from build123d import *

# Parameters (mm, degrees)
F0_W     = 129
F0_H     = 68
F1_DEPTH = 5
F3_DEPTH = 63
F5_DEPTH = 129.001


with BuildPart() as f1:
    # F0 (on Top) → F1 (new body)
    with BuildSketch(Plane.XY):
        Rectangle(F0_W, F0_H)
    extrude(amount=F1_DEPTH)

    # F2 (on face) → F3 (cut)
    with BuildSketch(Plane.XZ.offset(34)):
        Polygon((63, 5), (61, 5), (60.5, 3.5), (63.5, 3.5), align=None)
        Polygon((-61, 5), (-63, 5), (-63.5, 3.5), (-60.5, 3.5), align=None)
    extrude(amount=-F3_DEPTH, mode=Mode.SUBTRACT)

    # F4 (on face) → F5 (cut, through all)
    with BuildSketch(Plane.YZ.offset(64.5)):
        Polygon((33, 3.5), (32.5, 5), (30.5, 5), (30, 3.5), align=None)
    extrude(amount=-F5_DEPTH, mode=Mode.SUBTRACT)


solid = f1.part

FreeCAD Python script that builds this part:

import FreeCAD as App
import Part
import Sketcher
from FreeCAD import Vector


def add_polygon(sketch, points):
    """Adds a closed chain of lines whose ends are joined by coincident constraints."""
    first, n = sketch.GeometryCount, len(points)
    for a, b in zip(points, points[1:] + points[:1]):
        sketch.addGeometry(Part.LineSegment(App.Vector(*a, 0), App.Vector(*b, 0)), False)
    for i in range(n):
        sketch.addConstraint(Sketcher.Constraint("Coincident", first + i, 2, first + (i + 1) % n, 1))

doc = App.newDocument("Part")
body = doc.addObject("PartDesign::Body", "Body")

# Sketch on XY plane
sketch1 = doc.addObject("Sketcher::SketchObject", "Sketch")
body.addObject(sketch1)
sketch1.AttachmentSupport = (doc.XY_Plane, [""])
sketch1.MapMode = "FlatFace"
add_polygon(sketch1, [(-64, 34), (-64, -34), (64, -34), (64, 34)])  # lines 0-3
sketch1.addConstraint(Sketcher.Constraint("Vertical", 0))
sketch1.addConstraint(Sketcher.Constraint("Horizontal", 1))
sketch1.addConstraint(Sketcher.Constraint("Vertical", 2))
sketch1.addConstraint(Sketcher.Constraint("Horizontal", 3))
sketch1.addConstraint(Sketcher.Constraint("Symmetric", 0, 2, 2, 2, -1, 1))
sketch1.addConstraint(Sketcher.Constraint("DistanceX", 1, 1, 1, 2, 129.0))
sketch1.addConstraint(Sketcher.Constraint("DistanceY", 0, 2, 0, 1, 68.0))
pad1 = doc.addObject("PartDesign::Pad", "Pad")
body.addObject(pad1)
pad1.Profile = sketch1
pad1.Length = 5

# Sketch on XZ plane
sketch2 = doc.addObject("Sketcher::SketchObject", "Sketch001")
body.addObject(sketch2)
sketch2.AttachmentSupport = (doc.XZ_Plane, [""])
sketch2.MapMode = "FlatFace"
sketch2.AttachmentOffset = App.Placement(Vector(0, 0, 34), App.Rotation())
add_polygon(sketch2, [(63, 5), (61, 5), (60.5, 3.5), (63.5, 3.5)])  # lines 0-3
add_polygon(sketch2, [(-61, 5), (-63, 5), (-63.5, 3.5), (-60.5, 3.5)])  # lines 4-7
sketch2.addConstraint(Sketcher.Constraint("Horizontal", 0))
sketch2.addConstraint(Sketcher.Constraint("Horizontal", 2))
sketch2.addConstraint(Sketcher.Constraint("Horizontal", 4))
sketch2.addConstraint(Sketcher.Constraint("Horizontal", 6))
sketch2.addConstraint(Sketcher.Constraint("Symmetric", 3, 2, 4, 2, -2))
sketch2.addConstraint(Sketcher.Constraint("Symmetric", 2, 2, 5, 2, -2))
sketch2.addConstraint(Sketcher.Constraint("Parallel", 1, 5))
sketch2.addConstraint(Sketcher.Constraint("Parallel", 3, 7))
sketch2.addConstraint(Sketcher.Constraint("Equal", 0, 4))
sketch2.addConstraint(Sketcher.Constraint("DistanceX", 0, 2, 0, 1, 2.0))
sketch2.addConstraint(Sketcher.Constraint("DistanceX", 2, 1, 2, 2, 3.0))
sketch2.addConstraint(Sketcher.Constraint("DistanceX", -1, 1, 0, 2, 61.0))
sketch2.addConstraint(Sketcher.Constraint("DistanceY", -1, 1, 0, 2, 5.0))
sketch2.addConstraint(Sketcher.Constraint("DistanceY", -1, 1, 1, 2, 3.5))
pocket1 = doc.addObject("PartDesign::Pocket", "Pocket")
body.addObject(pocket1)
pocket1.Profile = sketch2
pocket1.Length = 63

# Sketch on YZ plane
sketch3 = doc.addObject("Sketcher::SketchObject", "Sketch002")
body.addObject(sketch3)
sketch3.AttachmentSupport = (doc.YZ_Plane, [""])
sketch3.MapMode = "FlatFace"
sketch3.AttachmentOffset = App.Placement(Vector(0, 0, 64.5), App.Rotation())
add_polygon(sketch3, [(33, 3.5), (32.5, 5), (30.5, 5), (30, 3.5)])  # lines 0-3
sketch3.addConstraint(Sketcher.Constraint("Horizontal", 1))
sketch3.addConstraint(Sketcher.Constraint("Horizontal", 3))
sketch3.addConstraint(Sketcher.Constraint("Equal", 0, 2))
sketch3.addConstraint(Sketcher.Constraint("DistanceX", 1, 2, 1, 1, 2.0))
sketch3.addConstraint(Sketcher.Constraint("DistanceX", 3, 1, 3, 2, 3.0))
sketch3.addConstraint(Sketcher.Constraint("DistanceY", -1, 1, 0, 2, 5.0))
sketch3.addConstraint(Sketcher.Constraint("DistanceX", -1, 1, 2, 2, 30.0))
sketch3.addConstraint(Sketcher.Constraint("DistanceY", -1, 1, 2, 2, 3.5))
pocket2 = doc.addObject("PartDesign::Pocket", "Pocket001")
body.addObject(pocket2)
pocket2.Profile = sketch3
pocket2.Type = "ThroughAll"

doc.recompute()
